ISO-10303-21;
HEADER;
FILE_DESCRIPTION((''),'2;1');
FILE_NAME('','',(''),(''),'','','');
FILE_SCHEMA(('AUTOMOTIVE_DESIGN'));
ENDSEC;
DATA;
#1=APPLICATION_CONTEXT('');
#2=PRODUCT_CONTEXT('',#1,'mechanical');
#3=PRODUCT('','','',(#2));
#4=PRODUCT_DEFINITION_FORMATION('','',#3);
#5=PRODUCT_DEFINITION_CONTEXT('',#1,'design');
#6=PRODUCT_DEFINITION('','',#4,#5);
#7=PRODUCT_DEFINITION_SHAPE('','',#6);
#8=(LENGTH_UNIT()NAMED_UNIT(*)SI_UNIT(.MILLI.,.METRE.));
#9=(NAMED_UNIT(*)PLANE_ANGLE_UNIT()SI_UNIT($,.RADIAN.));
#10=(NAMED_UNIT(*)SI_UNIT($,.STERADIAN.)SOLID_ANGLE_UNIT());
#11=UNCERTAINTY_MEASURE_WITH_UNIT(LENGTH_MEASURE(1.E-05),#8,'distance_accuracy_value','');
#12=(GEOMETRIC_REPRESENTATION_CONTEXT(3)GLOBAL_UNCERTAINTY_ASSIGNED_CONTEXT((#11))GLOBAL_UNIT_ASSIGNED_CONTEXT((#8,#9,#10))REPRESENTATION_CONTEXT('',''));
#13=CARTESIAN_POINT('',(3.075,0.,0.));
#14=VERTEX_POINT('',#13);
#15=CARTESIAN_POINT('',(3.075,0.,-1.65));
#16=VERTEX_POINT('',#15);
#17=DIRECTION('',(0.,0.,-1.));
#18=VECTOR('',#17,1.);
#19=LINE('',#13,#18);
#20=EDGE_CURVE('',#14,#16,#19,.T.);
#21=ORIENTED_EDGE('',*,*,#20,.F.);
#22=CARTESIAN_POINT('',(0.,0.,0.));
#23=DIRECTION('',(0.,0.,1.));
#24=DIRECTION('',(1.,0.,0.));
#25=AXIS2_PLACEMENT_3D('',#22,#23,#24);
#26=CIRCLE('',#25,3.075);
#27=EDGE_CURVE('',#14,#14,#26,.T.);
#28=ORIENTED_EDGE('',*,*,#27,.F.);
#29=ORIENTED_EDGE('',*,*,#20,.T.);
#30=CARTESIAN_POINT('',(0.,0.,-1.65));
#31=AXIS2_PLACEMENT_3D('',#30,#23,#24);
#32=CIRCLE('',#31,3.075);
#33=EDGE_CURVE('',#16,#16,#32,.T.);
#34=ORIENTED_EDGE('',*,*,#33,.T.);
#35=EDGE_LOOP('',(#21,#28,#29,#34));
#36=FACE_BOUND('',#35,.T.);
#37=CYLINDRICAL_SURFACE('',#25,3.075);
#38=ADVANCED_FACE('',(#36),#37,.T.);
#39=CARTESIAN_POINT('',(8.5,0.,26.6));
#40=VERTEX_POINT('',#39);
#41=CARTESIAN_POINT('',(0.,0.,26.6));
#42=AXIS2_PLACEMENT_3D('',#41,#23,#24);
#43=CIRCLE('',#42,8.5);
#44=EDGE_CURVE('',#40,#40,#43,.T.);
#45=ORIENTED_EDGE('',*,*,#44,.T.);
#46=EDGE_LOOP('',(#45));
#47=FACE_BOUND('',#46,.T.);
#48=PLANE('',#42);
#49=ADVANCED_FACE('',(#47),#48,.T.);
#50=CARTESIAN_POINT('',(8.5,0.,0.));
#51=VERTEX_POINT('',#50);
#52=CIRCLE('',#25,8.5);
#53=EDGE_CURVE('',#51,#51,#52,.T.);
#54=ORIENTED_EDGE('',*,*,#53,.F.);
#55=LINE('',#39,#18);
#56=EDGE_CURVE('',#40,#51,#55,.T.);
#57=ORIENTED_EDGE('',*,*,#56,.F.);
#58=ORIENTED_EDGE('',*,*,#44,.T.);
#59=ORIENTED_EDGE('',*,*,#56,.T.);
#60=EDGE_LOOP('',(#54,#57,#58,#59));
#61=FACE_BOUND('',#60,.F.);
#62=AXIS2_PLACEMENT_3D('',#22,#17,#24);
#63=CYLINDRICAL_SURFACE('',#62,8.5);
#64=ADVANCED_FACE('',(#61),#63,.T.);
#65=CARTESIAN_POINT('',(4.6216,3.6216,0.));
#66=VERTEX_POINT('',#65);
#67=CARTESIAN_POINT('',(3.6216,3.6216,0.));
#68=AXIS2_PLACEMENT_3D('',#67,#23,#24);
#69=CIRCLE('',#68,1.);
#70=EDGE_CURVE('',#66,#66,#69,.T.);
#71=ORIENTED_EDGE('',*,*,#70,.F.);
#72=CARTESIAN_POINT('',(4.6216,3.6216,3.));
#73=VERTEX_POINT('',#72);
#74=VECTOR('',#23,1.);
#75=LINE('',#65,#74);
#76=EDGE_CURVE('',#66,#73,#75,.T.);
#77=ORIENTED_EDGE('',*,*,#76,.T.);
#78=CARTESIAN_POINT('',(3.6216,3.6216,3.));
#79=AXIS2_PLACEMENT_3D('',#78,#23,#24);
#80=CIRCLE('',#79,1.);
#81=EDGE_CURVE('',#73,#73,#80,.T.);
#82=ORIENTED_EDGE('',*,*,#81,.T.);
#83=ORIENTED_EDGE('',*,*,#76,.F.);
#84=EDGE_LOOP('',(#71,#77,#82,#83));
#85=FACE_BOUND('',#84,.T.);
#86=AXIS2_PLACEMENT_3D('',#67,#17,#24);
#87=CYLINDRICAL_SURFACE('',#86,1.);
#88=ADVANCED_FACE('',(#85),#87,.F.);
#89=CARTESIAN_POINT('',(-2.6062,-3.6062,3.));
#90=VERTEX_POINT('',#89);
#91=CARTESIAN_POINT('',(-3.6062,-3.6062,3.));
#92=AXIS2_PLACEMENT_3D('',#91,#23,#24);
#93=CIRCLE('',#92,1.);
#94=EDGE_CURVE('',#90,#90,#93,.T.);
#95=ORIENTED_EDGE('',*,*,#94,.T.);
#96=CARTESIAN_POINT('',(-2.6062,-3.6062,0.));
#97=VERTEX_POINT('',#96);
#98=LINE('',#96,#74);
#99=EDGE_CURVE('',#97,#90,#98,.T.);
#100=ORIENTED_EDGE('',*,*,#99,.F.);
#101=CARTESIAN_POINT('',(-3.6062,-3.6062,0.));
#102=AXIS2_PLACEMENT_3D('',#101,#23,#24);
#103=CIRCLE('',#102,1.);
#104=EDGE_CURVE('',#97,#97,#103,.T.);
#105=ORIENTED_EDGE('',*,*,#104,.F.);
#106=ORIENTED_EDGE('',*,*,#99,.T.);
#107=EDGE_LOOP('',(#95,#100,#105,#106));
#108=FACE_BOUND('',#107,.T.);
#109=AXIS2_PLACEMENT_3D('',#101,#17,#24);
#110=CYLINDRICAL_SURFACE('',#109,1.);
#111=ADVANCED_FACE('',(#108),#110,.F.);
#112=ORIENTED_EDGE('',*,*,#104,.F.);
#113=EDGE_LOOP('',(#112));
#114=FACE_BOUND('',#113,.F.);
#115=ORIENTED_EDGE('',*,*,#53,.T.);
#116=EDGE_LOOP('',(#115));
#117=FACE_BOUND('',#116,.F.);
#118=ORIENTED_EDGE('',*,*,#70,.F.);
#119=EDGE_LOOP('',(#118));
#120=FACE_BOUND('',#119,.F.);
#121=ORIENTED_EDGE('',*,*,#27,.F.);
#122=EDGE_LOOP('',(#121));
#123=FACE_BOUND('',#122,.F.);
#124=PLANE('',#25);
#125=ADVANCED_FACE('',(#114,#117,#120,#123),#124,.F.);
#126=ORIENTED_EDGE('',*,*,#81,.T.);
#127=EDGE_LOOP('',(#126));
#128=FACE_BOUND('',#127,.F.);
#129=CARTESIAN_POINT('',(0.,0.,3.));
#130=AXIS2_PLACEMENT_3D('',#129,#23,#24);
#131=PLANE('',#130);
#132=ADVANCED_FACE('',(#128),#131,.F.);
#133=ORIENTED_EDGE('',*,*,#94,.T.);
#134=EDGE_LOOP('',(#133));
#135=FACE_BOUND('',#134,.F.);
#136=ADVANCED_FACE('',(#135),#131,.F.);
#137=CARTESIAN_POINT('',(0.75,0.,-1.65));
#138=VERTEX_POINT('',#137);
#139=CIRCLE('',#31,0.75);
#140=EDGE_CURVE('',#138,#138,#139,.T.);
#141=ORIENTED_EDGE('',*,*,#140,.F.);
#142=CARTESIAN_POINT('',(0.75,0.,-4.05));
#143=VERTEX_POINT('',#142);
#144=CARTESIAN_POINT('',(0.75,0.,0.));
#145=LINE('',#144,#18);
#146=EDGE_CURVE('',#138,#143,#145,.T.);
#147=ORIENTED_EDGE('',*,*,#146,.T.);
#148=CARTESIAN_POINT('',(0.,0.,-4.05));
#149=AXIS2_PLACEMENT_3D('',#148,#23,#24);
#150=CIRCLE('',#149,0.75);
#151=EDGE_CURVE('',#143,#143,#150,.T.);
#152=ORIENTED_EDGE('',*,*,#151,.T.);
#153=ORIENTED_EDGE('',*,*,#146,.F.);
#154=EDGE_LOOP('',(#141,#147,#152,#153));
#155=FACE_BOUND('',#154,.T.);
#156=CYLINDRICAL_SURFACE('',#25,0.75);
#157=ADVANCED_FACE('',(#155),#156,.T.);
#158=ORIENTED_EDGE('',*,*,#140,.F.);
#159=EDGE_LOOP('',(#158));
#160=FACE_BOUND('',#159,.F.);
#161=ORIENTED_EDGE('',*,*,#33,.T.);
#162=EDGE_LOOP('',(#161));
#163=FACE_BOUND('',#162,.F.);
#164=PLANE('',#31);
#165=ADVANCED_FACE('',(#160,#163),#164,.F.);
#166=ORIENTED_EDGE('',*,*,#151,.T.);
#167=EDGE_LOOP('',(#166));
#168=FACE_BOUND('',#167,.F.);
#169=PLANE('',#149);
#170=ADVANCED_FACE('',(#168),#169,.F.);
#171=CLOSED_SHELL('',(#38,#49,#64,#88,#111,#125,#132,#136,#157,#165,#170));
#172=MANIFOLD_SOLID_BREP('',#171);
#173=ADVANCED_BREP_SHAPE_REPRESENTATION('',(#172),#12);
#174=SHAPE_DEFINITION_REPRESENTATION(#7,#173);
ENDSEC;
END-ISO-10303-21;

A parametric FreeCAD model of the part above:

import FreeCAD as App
import Part
import Sketcher
Q = App.Units.Quantity

doc = App.newDocument("Part")
body = doc.addObject("PartDesign::Body", "Body")

# Sketch on XY plane
sketch1 = body.newObject("Sketcher::SketchObject", "Sketch")
sketch1.AttachmentSupport = (doc.getObject("XY_Plane"), [""])
sketch1.MapMode = "FlatFace"
sketch1.addGeometry([
    Part.Circle(App.Vector(0, 0, 0), App.Vector(0, 0, 1), 8.5),
    Part.Circle(App.Vector(-3.6, -3.6, 0), App.Vector(0, 0, 1), 1),
    Part.Circle(App.Vector(3.6, 3.6, 0), App.Vector(0, 0, 1), 1),
], False)
sketch1.addConstraint([
    Sketcher.Constraint("Coincident", 0, 3, -1, 1),
    Sketcher.Constraint("Equal", 1, 2),
    Sketcher.Constraint("Diameter", 0, Q("17 mm")),
    Sketcher.Constraint("Diameter", 1, Q("2 mm")),
    Sketcher.Constraint("DistanceX", 1, 3, -1, 1, Q("3.6062 mm")),
    Sketcher.Constraint("DistanceY", 1, 3, -1, 1, Q("3.6062 mm")),
    Sketcher.Constraint("DistanceX", -1, 1, 2, 3, Q("3.6216 mm")),
    Sketcher.Constraint("DistanceY", -1, 1, 2, 3, Q("3.6216 mm")),
])
pad1 = body.newObject("PartDesign::Pad", "Pad")
pad1.Profile = sketch1
pad1.Length = 3

# Sketch on XY plane
sketch2 = body.newObject("Sketcher::SketchObject", "Sketch001")
sketch2.AttachmentSupport = (doc.getObject("XY_Plane"), [""])
sketch2.MapMode = "FlatFace"
sketch2.AttachmentOffset = App.Placement(App.Vector(0, 0, 3), App.Rotation())
sketch2.addGeometry(Part.Circle(App.Vector(0, 0, 0), App.Vector(0, 0, 1), 8), False)
sketch2.addConstraint([
    Sketcher.Constraint("Coincident", 0, 3, -1, 1),
    Sketcher.Constraint("Diameter", 0, Q("17 mm")),
])
pad2 = body.newObject("PartDesign::Pad", "Pad001")
pad2.Profile = sketch2
pad2.Length = 23.6

# Sketch on XY plane
sketch3 = body.newObject("Sketcher::SketchObject", "Sketch002")
sketch3.AttachmentSupport = (doc.getObject("XY_Plane"), [""])
sketch3.MapMode = "FlatFace"
sketch3.addGeometry(Part.Circle(App.Vector(0, 0, 0), App.Vector(0, 0, 1), 3.1), False)
sketch3.addConstraint([
    Sketcher.Constraint("Coincident", 0, 3, -1, 1),
    Sketcher.Constraint("Diameter", 0, Q("6.15 mm")),
])
pad3 = body.newObject("PartDesign::Pad", "Pad002")
pad3.Profile = sketch3
pad3.Length = 1.65
pad3.Reversed = True

# Sketch on XY plane
sketch4 = body.newObject("Sketcher::SketchObject", "Sketch003")
sketch4.AttachmentSupport = (doc.getObject("XY_Plane"), [""])
sketch4.MapMode = "FlatFace"
sketch4.addGeometry(Part.Circle(App.Vector(0, 0, 0), App.Vector(0, 0, 1), 0.8), False)
sketch4.addConstraint([
    Sketcher.Constraint("Coincident", 0, 3, -1, 1),
    Sketcher.Constraint("Diameter", 0, Q("1.5 mm")),
])
pad4 = body.newObject("PartDesign::Pad", "Pad003")
pad4.Profile = sketch4
pad4.Length = 4.05
pad4.Reversed = True

doc.recompute()
